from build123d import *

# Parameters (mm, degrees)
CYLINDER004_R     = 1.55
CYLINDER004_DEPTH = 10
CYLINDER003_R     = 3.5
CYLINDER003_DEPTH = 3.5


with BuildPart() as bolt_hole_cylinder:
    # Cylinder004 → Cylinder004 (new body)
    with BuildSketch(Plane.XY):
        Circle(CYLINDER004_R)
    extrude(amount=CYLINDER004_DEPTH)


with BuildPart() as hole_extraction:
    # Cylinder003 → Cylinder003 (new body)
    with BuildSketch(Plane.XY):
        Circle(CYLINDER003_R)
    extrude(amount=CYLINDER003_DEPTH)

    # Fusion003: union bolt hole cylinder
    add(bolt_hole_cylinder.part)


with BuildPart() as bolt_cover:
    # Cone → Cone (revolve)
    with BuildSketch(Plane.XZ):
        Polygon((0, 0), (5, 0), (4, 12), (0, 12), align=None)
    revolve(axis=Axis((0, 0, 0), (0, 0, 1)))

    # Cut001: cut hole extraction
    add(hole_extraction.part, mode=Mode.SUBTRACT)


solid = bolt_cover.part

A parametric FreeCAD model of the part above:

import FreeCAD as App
import Part
import Sketcher
Q = App.Units.Quantity


def add_polygon(sketch, points):
    """Adds a closed chain of lines whose ends are joined by coincident constraints."""
    first, n = sketch.GeometryCount, len(points)
    for a, b in zip(points, points[1:] + points[:1]):
        sketch.addGeometry(Part.LineSegment(App.Vector(*a, 0), App.Vector(*b, 0)), False)
    for i in range(n):
        sketch.addConstraint(Sketcher.Constraint("Coincident", first + i, 2, first + (i + 1) % n, 1))

doc = App.newDocument("Part")
params = doc.addObject("Spreadsheet::Sheet", "Params")
for row, (alias, value) in enumerate([
    ("sketch1_diameter", "3.1 mm"),
    ("pad1_length", "10 mm"),
    ("sketch2_diameter", "7 mm"),
    ("pad2_length", "3.5 mm"),
    ("sketch3_width", "5 mm"),
    ("sketch3_width2", "4 mm"),
    ("sketch3_height", "12 mm"),
    ("revolution_angle", "360 deg"),
], start=1):
    params.set(f"A{row}", alias)
    params.set(f"B{row}", "=" + value)
    params.setAlias(f"B{row}", alias)

body = doc.addObject("PartDesign::Body", "Body")

# Sketch on XY plane
sketch1 = doc.addObject("Sketcher::SketchObject", "Sketch")
body.addObject(sketch1)
sketch1.AttachmentSupport = (doc.XY_Plane, [""])
sketch1.MapMode = "FlatFace"
sketch1.addGeometry(Part.Circle(App.Vector(0, 0, 0), App.Vector(0, 0, 1), 1.6), False)
sketch1.addConstraint([
    Sketcher.Constraint("Coincident", 0, 3, -1, 1),
    Sketcher.Constraint("Diameter", 0, Q("3.1 mm")),
])
sketch1.setExpression("Constraints[1]", "Params.sketch1_diameter")
pad1 = doc.addObject("PartDesign::Pad", "Pad")
body.addObject(pad1)
pad1.Profile = sketch1
pad1.setExpression("Length", "Params.pad1_length")
body2 = doc.addObject("PartDesign::Body", "Body001")

# Sketch on XY plane
sketch2 = doc.addObject("Sketcher::SketchObject", "Sketch001")
body2.addObject(sketch2)
sketch2.AttachmentSupport = (doc.getObject("XY_Plane001"), [""])
sketch2.MapMode = "FlatFace"
sketch2.addGeometry(Part.Circle(App.Vector(0, 0, 0), App.Vector(0, 0, 1), 3.5), False)
sketch2.addConstraint([
    Sketcher.Constraint("Coincident", 0, 3, -1, 1),
    Sketcher.Constraint("Diameter", 0, Q("7 mm")),
])
sketch2.setExpression("Constraints[1]", "Params.sketch2_diameter")
pad2 = doc.addObject("PartDesign::Pad", "Pad001")
body2.addObject(pad2)
pad2.Profile = sketch2
pad2.setExpression("Length", "Params.pad2_length")
doc.recompute()

boolean = doc.addObject("PartDesign::Boolean", "Boolean")
body2.addObject(boolean)
boolean.Type = "Fuse"
boolean.addObjects([body])
body3 = doc.addObject("PartDesign::Body", "Body002")

# Sketch on XZ plane
sketch3 = doc.addObject("Sketcher::SketchObject", "Sketch002")
body3.addObject(sketch3)
sketch3.AttachmentSupport = (doc.getObject("XZ_Plane002"), [""])
sketch3.MapMode = "FlatFace"
add_polygon(sketch3, [(0, 0), (5, 0), (4, 12), (0, 12)])  # lines 0-3
sketch3.addConstraint([
    Sketcher.Constraint("Horizontal", 0),
    Sketcher.Constraint("Horizontal", 2),
    Sketcher.Constraint("Vertical", 3),
    Sketcher.Constraint("Coincident", 3, 2, -1, 1),
    Sketcher.Constraint("DistanceX", 0, 1, 0, 2, Q("5 mm")),
    Sketcher.Constraint("DistanceX", 2, 2, 2, 1, Q("4 mm")),
    Sketcher.Constraint("DistanceY", 3, 2, 3, 1, Q("12 mm")),
])
sketch3.setExpression("Constraints[8]", "Params.sketch3_width")
sketch3.setExpression("Constraints[9]", "Params.sketch3_width2")
sketch3.setExpression("Constraints[10]", "Params.sketch3_height")
revolution = doc.addObject("PartDesign::Revolution", "Revolution")
body3.addObject(revolution)
revolution.Profile = sketch3
revolution.ReferenceAxis = (sketch3, ["V_Axis"])
revolution.setExpression("Angle", "Params.revolution_angle")
doc.recompute()

boolean2 = doc.addObject("PartDesign::Boolean", "Boolean001")
body3.addObject(boolean2)
boolean2.Type = "Cut"
boolean2.addObjects([body2])

doc.recompute()
